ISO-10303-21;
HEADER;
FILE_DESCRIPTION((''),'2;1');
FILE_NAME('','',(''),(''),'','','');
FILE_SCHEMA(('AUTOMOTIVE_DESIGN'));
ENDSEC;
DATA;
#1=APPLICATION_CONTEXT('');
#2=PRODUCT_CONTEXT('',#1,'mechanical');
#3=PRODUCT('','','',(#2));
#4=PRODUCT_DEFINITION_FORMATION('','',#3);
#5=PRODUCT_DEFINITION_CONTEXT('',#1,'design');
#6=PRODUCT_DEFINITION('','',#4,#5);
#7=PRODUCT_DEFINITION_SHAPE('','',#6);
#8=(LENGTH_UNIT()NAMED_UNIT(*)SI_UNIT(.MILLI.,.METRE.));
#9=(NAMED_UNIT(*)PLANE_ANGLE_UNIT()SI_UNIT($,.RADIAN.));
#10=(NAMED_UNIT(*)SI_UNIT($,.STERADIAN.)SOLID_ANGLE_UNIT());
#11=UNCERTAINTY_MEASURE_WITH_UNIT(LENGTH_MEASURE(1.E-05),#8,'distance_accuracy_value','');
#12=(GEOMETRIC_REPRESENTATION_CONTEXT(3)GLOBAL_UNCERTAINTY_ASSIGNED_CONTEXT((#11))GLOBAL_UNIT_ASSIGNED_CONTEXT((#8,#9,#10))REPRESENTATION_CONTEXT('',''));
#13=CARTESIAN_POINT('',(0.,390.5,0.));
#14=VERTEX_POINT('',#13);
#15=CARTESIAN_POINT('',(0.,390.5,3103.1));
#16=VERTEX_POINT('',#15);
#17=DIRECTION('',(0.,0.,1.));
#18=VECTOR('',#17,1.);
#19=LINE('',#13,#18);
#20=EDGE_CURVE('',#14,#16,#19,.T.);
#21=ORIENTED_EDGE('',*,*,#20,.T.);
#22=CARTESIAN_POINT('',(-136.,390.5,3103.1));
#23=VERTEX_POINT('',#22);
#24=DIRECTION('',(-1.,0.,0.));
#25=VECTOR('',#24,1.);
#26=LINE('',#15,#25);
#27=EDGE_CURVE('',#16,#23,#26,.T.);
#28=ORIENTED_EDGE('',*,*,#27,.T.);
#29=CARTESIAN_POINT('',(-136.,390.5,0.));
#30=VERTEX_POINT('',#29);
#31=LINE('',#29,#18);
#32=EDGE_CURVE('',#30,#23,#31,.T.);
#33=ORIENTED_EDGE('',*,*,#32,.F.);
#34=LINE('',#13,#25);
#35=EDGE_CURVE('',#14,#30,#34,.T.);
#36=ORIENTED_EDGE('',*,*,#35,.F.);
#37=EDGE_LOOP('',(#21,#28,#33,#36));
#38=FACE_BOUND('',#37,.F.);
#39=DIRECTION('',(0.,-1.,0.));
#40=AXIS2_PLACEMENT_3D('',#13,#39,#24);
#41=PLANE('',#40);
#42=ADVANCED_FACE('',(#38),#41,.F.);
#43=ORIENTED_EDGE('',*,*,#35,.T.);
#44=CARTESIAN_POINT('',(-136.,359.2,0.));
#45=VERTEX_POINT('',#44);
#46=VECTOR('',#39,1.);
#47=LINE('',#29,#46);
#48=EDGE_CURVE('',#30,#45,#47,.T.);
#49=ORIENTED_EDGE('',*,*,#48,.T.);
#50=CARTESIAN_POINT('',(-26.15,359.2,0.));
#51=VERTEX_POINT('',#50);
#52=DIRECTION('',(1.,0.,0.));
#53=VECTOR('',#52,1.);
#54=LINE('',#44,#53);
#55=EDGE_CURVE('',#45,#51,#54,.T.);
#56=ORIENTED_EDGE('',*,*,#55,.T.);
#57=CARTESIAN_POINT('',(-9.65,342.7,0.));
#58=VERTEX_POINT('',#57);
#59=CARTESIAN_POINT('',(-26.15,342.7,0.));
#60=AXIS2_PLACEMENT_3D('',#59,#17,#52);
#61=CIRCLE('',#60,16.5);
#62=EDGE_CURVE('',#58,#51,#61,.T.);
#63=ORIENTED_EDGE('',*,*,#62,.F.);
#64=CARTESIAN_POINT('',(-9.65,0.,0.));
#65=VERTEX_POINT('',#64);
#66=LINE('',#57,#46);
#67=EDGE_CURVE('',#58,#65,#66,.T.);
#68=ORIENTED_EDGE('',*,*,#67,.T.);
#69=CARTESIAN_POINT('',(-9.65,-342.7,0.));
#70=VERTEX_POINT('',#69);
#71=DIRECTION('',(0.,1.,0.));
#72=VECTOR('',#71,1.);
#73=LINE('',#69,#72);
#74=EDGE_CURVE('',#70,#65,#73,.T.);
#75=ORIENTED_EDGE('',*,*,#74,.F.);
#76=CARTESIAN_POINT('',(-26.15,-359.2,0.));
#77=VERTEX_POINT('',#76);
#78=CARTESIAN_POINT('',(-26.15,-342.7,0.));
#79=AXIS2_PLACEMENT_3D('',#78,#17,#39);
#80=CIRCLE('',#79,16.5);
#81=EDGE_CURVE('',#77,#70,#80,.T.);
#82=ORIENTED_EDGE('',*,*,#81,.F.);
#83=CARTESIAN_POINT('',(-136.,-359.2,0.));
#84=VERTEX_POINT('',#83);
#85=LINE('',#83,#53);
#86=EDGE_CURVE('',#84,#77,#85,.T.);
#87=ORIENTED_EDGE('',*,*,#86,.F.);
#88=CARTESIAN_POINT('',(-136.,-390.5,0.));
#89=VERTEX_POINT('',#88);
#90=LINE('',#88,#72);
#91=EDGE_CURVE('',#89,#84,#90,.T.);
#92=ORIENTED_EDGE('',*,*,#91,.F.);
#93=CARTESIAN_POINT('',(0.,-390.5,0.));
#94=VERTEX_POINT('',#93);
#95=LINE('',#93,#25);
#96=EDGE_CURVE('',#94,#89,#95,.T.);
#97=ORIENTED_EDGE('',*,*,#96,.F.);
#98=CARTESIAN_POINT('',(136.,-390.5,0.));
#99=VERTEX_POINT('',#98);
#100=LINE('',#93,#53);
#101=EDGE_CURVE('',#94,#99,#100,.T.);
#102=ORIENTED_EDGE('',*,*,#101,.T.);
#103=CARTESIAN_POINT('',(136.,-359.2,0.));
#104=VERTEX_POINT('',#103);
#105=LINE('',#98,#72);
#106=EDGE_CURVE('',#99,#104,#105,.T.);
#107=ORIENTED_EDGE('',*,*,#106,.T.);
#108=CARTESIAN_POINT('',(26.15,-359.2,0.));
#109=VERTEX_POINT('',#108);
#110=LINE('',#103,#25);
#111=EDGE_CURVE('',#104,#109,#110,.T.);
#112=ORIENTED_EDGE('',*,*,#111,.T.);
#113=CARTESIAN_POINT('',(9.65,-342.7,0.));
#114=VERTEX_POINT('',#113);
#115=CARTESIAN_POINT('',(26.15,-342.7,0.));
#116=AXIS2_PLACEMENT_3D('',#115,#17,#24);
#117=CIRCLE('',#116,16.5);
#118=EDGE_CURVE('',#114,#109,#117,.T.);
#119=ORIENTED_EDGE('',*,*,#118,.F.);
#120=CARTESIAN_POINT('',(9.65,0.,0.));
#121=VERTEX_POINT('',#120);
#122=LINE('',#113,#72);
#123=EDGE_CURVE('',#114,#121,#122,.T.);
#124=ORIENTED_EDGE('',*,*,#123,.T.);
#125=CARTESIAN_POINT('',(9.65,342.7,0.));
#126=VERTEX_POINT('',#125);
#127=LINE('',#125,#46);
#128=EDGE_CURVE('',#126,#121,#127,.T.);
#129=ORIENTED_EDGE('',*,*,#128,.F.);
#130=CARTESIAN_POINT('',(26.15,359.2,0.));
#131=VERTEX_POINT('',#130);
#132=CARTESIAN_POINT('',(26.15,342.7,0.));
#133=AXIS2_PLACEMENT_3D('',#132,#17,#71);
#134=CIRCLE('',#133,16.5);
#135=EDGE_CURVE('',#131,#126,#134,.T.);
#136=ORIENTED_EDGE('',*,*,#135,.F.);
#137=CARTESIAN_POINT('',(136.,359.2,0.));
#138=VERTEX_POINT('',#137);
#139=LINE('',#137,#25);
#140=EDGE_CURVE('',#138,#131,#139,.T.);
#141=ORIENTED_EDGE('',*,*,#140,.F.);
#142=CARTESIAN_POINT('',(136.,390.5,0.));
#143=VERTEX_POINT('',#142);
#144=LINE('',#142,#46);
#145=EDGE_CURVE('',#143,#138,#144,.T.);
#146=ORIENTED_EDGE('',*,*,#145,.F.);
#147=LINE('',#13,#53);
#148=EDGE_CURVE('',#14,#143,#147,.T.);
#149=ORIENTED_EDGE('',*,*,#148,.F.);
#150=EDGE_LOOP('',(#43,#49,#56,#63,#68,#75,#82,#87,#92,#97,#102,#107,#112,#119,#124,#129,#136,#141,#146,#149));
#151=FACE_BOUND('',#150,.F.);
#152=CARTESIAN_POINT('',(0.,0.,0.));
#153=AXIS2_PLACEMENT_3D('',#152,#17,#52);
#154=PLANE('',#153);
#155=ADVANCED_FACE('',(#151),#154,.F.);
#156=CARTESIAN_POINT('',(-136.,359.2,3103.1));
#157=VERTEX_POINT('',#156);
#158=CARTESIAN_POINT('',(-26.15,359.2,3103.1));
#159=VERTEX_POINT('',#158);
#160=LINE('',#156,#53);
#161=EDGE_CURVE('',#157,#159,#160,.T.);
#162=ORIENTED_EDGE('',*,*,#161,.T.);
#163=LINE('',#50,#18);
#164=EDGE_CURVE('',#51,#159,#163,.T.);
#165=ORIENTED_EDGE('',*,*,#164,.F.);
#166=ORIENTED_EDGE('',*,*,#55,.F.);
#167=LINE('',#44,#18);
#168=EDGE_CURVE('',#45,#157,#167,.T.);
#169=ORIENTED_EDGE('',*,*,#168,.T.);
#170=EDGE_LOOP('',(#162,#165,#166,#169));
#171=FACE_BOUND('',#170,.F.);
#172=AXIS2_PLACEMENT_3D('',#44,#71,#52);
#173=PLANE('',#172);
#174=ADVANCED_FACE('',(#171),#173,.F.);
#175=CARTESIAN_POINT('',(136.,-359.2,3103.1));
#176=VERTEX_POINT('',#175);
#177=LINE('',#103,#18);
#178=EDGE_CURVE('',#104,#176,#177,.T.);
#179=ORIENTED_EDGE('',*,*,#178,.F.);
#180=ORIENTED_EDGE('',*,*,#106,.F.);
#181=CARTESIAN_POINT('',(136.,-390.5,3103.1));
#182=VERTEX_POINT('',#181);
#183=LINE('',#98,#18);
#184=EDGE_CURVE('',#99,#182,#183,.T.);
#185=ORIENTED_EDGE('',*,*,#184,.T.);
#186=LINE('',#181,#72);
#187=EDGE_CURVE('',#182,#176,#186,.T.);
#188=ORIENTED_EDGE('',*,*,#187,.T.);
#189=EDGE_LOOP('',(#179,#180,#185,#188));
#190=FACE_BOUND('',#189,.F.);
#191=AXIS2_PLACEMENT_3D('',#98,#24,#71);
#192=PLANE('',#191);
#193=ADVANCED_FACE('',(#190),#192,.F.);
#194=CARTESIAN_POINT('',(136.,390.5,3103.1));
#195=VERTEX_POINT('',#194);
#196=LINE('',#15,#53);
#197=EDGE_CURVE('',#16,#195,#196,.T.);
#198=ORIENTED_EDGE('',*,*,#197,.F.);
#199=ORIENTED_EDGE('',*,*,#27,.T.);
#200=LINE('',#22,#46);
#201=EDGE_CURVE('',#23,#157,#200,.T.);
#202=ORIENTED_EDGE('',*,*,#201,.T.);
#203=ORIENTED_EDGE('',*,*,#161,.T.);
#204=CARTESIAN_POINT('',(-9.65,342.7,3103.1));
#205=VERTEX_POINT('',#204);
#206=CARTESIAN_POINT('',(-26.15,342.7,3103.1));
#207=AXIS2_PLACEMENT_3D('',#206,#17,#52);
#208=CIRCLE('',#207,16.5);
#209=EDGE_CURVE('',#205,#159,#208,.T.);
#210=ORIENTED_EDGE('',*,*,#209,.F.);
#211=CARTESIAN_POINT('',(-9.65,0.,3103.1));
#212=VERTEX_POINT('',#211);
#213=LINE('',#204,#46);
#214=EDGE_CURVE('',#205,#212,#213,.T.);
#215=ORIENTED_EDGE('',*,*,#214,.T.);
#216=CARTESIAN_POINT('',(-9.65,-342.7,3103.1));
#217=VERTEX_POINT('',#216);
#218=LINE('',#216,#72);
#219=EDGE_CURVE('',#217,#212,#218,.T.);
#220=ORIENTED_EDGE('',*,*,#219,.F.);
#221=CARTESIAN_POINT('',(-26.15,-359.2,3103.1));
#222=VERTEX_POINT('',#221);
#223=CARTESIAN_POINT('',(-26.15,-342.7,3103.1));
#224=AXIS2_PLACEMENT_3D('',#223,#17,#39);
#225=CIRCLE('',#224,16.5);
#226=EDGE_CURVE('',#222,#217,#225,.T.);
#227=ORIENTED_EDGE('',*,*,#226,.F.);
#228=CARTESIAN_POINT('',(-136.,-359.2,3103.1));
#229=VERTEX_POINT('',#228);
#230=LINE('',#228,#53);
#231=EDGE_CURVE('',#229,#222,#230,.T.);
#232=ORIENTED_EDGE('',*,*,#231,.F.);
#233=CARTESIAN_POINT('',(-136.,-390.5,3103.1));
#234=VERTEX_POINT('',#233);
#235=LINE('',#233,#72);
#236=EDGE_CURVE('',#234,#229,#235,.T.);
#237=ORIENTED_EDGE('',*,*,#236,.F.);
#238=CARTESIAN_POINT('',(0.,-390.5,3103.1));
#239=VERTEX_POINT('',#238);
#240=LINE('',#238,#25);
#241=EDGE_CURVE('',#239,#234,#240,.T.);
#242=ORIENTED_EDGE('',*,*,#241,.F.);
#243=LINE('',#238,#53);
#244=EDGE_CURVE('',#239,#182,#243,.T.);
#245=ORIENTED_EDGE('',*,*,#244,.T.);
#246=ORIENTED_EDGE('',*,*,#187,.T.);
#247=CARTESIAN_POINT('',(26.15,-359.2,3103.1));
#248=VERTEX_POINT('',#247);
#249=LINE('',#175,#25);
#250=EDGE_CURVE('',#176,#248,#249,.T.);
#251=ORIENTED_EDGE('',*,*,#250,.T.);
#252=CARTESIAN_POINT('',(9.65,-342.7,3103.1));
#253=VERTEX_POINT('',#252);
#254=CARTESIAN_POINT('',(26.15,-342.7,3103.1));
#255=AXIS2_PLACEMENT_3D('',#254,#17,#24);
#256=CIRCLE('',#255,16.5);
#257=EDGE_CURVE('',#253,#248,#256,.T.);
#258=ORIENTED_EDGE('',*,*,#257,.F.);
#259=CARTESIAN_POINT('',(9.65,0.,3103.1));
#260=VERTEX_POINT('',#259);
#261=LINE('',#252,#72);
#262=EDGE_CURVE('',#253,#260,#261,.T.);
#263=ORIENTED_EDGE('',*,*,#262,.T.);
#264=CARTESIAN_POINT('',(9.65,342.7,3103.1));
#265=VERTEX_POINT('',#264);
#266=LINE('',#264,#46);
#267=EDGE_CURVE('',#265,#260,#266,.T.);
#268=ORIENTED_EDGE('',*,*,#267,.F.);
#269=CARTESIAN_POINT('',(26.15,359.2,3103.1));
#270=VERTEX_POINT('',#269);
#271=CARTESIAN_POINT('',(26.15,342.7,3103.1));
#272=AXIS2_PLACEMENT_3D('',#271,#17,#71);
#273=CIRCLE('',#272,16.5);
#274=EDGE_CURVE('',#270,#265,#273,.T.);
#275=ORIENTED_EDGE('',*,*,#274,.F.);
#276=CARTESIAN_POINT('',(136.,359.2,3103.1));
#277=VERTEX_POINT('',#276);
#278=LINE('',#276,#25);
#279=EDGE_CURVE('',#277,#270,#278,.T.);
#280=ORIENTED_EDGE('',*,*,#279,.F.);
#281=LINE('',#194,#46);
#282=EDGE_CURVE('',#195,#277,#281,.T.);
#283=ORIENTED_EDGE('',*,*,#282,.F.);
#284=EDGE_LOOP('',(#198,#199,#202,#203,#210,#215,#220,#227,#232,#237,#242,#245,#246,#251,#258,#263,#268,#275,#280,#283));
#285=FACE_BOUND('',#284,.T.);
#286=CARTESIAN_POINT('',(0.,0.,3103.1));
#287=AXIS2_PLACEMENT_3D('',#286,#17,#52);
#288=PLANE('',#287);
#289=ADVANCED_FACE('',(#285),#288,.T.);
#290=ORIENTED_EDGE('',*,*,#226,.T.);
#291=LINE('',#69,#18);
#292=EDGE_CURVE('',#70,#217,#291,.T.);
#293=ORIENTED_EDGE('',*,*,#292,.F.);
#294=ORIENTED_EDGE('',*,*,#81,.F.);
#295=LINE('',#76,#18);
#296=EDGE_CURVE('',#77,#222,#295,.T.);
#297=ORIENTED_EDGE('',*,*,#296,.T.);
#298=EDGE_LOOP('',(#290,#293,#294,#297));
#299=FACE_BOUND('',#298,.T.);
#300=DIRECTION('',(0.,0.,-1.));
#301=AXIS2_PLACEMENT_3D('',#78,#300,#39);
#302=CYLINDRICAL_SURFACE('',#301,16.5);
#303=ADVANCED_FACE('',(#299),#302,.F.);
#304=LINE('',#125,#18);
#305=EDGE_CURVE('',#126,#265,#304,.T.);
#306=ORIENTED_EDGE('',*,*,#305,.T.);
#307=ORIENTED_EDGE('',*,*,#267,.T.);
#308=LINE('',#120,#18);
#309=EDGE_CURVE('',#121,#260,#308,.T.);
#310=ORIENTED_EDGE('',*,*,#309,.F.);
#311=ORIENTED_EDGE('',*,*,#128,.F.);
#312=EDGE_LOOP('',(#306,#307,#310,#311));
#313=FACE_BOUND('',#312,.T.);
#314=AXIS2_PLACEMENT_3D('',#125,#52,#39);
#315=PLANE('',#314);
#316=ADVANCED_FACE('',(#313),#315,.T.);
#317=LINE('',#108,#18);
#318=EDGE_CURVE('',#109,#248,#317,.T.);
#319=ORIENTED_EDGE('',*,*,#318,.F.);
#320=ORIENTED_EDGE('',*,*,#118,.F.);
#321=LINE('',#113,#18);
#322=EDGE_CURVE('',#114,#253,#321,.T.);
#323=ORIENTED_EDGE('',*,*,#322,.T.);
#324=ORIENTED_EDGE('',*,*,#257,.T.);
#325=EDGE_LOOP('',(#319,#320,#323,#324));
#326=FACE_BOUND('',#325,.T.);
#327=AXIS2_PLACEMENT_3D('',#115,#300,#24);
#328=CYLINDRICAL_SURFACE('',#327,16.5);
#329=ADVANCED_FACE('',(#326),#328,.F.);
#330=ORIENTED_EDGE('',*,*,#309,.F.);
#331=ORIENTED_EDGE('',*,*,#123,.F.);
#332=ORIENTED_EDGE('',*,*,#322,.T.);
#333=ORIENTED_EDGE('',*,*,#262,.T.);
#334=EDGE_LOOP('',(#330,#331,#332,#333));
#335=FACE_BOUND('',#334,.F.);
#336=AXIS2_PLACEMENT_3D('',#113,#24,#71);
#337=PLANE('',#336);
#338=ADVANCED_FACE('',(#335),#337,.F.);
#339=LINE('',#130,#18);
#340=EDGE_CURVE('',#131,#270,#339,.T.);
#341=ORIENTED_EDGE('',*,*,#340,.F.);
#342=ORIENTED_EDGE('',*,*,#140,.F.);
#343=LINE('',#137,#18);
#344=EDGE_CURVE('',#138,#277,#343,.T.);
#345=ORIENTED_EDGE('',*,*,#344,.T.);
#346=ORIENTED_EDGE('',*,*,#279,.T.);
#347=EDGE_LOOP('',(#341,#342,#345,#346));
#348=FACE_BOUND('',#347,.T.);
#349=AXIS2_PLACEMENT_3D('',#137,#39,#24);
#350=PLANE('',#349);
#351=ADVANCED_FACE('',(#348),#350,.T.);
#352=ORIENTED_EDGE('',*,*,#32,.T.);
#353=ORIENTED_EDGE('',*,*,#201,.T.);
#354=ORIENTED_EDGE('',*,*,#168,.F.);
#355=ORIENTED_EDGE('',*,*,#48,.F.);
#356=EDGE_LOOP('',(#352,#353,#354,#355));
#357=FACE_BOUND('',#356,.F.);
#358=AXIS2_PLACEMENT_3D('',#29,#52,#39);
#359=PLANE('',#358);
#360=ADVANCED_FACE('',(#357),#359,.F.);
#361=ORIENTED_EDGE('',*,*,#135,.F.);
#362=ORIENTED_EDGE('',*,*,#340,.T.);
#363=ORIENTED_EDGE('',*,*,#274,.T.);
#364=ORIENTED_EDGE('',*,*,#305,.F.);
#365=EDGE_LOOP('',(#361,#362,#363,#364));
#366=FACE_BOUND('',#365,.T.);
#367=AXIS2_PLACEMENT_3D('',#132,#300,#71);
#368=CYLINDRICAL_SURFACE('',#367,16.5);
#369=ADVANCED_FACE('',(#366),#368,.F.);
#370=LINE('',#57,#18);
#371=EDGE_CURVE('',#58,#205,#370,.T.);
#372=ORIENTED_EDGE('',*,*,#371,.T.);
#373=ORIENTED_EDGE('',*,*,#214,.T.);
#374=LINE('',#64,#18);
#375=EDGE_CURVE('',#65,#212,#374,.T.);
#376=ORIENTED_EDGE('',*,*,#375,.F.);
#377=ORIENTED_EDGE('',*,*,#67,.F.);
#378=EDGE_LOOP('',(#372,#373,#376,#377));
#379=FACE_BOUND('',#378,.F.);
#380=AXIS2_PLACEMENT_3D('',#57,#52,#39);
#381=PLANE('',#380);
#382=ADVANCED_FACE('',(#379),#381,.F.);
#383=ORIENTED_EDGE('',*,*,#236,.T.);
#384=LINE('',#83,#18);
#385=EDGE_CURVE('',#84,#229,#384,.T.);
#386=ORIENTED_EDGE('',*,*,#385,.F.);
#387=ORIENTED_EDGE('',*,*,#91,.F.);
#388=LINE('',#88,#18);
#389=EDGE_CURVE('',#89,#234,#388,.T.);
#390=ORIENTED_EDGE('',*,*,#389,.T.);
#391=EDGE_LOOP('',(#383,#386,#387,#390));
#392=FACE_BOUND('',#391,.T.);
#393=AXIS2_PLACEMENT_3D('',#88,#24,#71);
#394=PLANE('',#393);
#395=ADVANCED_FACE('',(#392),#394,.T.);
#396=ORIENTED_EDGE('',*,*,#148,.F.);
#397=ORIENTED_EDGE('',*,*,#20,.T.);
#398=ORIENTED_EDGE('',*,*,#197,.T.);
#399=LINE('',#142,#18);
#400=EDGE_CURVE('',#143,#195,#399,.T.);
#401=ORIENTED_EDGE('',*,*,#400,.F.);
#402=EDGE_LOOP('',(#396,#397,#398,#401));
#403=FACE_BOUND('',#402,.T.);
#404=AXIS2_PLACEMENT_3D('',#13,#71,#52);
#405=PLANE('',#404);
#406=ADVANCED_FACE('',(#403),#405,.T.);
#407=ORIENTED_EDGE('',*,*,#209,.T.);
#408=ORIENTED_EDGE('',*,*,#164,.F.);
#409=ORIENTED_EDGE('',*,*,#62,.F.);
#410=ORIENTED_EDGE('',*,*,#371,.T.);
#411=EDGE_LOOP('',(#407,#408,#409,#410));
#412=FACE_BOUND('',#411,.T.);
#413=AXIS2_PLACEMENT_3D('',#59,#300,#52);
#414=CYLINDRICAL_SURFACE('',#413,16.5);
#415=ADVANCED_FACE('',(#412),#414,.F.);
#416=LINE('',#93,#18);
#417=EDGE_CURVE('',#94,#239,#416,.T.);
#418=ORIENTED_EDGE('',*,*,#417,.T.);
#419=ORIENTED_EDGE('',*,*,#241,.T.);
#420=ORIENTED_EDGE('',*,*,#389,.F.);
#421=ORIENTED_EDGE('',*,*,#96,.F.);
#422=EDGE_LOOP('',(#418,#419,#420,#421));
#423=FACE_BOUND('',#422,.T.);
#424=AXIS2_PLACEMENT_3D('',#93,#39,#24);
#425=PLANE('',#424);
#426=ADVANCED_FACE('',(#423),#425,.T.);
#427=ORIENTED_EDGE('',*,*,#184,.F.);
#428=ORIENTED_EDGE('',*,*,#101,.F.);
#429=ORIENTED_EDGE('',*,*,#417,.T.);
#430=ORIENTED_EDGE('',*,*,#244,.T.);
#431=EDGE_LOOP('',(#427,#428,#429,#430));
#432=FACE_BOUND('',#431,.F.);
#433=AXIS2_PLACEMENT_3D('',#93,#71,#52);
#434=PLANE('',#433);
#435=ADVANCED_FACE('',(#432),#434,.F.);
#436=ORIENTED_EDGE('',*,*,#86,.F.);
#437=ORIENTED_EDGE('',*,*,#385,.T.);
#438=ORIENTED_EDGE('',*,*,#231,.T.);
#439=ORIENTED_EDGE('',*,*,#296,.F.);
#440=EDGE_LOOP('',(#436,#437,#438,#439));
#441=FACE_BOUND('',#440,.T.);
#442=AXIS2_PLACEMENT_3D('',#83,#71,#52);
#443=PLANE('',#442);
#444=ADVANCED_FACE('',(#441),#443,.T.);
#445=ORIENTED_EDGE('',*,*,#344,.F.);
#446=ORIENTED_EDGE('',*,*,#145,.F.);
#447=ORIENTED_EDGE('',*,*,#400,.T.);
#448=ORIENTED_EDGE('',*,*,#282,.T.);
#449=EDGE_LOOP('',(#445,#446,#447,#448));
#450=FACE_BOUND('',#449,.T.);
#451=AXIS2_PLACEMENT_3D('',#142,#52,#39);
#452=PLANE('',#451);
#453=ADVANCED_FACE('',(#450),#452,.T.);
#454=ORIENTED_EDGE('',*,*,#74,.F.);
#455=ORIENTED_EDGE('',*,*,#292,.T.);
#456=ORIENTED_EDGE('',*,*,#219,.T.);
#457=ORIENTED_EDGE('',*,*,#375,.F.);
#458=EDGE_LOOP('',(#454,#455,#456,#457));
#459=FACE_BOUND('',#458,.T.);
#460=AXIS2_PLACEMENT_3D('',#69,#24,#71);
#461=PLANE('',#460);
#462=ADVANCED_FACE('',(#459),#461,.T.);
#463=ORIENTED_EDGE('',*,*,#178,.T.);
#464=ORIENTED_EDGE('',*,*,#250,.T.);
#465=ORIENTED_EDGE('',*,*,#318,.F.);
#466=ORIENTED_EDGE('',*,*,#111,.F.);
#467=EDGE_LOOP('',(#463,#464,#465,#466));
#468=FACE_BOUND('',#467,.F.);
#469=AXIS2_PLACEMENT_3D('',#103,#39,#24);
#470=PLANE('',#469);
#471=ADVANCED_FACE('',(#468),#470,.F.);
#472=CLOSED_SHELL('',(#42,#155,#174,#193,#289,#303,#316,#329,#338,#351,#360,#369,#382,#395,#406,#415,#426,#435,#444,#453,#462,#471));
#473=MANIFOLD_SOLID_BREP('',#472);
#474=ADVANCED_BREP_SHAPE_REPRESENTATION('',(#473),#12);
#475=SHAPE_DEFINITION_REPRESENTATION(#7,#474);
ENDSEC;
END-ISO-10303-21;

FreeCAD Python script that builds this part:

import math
import FreeCAD as App
import Part
import Sketcher
from FreeCAD import Vector
Q = App.Units.Quantity

doc = App.newDocument("Part")
body = doc.addObject("PartDesign::Body", "Body")

sketch1 = body.newObject("Sketcher::SketchObject", "Sketch")
sketch1.AttachmentSupport = (doc.getObject("XY_Plane"), [""])
sketch1.MapMode = "FlatFace"
sketch1.addGeometry(Part.LineSegment(Vector(-136, -359, 0), Vector(-136, -390, 0)), False)
sketch1.addGeometry(Part.LineSegment(Vector(-136, -390, 0), Vector(136, -390, 0)), False)
sketch1.addGeometry(Part.LineSegment(Vector(136, -390, 0), Vector(136, -359, 0)), False)
sketch1.addGeometry(Part.LineSegment(Vector(136, -359, 0), Vector(26, -359, 0)), False)
sketch1.addGeometry(Part.ArcOfCircle(Part.Circle(Vector(26, -343, 0), Vector(0, 0, 1), 16), math.radians(180), math.radians(270)), False)
sketch1.addGeometry(Part.LineSegment(Vector(10, -343, 0), Vector(10, 343, 0)), False)
sketch1.addGeometry(Part.ArcOfCircle(Part.Circle(Vector(26, 343, 0), Vector(0, 0, 1), 16), math.radians(90), math.radians(180)), False)
sketch1.addGeometry(Part.LineSegment(Vector(26, 359, 0), Vector(136, 359, 0)), False)
sketch1.addGeometry(Part.LineSegment(Vector(136, 359, 0), Vector(136, 390, 0)), False)
sketch1.addGeometry(Part.LineSegment(Vector(136, 390, 0), Vector(-136, 390, 0)), False)
sketch1.addGeometry(Part.LineSegment(Vector(-136, 390, 0), Vector(-136, 359, 0)), False)
sketch1.addGeometry(Part.LineSegment(Vector(-136, 359, 0), Vector(-26, 359, 0)), False)
sketch1.addGeometry(Part.ArcOfCircle(Part.Circle(Vector(-26, 343, 0), Vector(0, 0, 1), 16), math.radians(0), math.radians(90)), False)
sketch1.addGeometry(Part.LineSegment(Vector(-10, 343, 0), Vector(-10, -343, 0)), False)
sketch1.addGeometry(Part.ArcOfCircle(Part.Circle(Vector(-26, -343, 0), Vector(0, 0, 1), 16), math.radians(-90), math.radians(0)), False)
sketch1.addGeometry(Part.LineSegment(Vector(-26, -359, 0), Vector(-136, -359, 0)), False)
sketch1.addConstraint(Sketcher.Constraint("Coincident", 0, 2, 1, 1))
sketch1.addConstraint(Sketcher.Constraint("Coincident", 1, 2, 2, 1))
sketch1.addConstraint(Sketcher.Constraint("Coincident", 2, 2, 3, 1))
sketch1.addConstraint(Sketcher.Constraint("Tangent", 3, 2, 4, 2))
sketch1.addConstraint(Sketcher.Constraint("Tangent", 4, 1, 5, 1))
sketch1.addConstraint(Sketcher.Constraint("Tangent", 5, 2, 6, 2))
sketch1.addConstraint(Sketcher.Constraint("Tangent", 6, 1, 7, 1))
sketch1.addConstraint(Sketcher.Constraint("Coincident", 7, 2, 8, 1))
sketch1.addConstraint(Sketcher.Constraint("Coincident", 8, 2, 9, 1))
sketch1.addConstraint(Sketcher.Constraint("Coincident", 9, 2, 10, 1))
sketch1.addConstraint(Sketcher.Constraint("Coincident", 10, 2, 11, 1))
sketch1.addConstraint(Sketcher.Constraint("Tangent", 11, 2, 12, 2))
sketch1.addConstraint(Sketcher.Constraint("Tangent", 12, 1, 13, 1))
sketch1.addConstraint(Sketcher.Constraint("Tangent", 13, 2, 14, 2))
sketch1.addConstraint(Sketcher.Constraint("Tangent", 14, 1, 15, 1))
sketch1.addConstraint(Sketcher.Constraint("Coincident", 15, 2, 0, 1))
sketch1.addConstraint(Sketcher.Constraint("Vertical", 0))
sketch1.addConstraint(Sketcher.Constraint("Horizontal", 1))
sketch1.addConstraint(Sketcher.Constraint("Vertical", 2))
sketch1.addConstraint(Sketcher.Constraint("Horizontal", 3))
sketch1.addConstraint(Sketcher.Constraint("Vertical", 5))
sketch1.addConstraint(Sketcher.Constraint("Horizontal", 7))
sketch1.addConstraint(Sketcher.Constraint("Vertical", 8))
sketch1.addConstraint(Sketcher.Constraint("Horizontal", 9))
sketch1.addConstraint(Sketcher.Constraint("Vertical", 10))
sketch1.addConstraint(Sketcher.Constraint("Horizontal", 11))
sketch1.addConstraint(Sketcher.Constraint("Vertical", 13))
sketch1.addConstraint(Sketcher.Constraint("Horizontal", 15))
sketch1.addConstraint(Sketcher.Constraint("Equal", 4, 6))
sketch1.addConstraint(Sketcher.Constraint("Equal", 6, 12))
sketch1.addConstraint(Sketcher.Constraint("Equal", 12, 14))
sketch1.addConstraint(Sketcher.Constraint("Symmetric", 4, 3, 12, 3, -1, 1))
sketch1.addConstraint(Sketcher.Constraint("Symmetric", 0, 2, 8, 2, -1, 1))
sketch1.addConstraint(Sketcher.Constraint("Symmetric", 7, 2, 10, 2, -2))
sketch1.addConstraint(Sketcher.Constraint("Symmetric", 2, 2, 15, 2, -2))
sketch1.addConstraint(Sketcher.Constraint("Radius", 4, Q("16.5 mm")))
sketch1.addConstraint(Sketcher.Constraint("DistanceY", 0, 2, 0, 1, Q("31.3 mm")))
sketch1.addConstraint(Sketcher.Constraint("DistanceX", 0, 2, -1, 1, Q("136 mm")))
sketch1.addConstraint(Sketcher.Constraint("DistanceY", 0, 2, -1, 1, Q("390.5 mm")))
sketch1.addConstraint(Sketcher.Constraint("DistanceX", -1, 1, 4, 1, Q("9.65 mm")))
pad1 = body.newObject("PartDesign::Pad", "Pad")
pad1.Profile = sketch1
pad1.Length = 3103.1

doc.recompute()
